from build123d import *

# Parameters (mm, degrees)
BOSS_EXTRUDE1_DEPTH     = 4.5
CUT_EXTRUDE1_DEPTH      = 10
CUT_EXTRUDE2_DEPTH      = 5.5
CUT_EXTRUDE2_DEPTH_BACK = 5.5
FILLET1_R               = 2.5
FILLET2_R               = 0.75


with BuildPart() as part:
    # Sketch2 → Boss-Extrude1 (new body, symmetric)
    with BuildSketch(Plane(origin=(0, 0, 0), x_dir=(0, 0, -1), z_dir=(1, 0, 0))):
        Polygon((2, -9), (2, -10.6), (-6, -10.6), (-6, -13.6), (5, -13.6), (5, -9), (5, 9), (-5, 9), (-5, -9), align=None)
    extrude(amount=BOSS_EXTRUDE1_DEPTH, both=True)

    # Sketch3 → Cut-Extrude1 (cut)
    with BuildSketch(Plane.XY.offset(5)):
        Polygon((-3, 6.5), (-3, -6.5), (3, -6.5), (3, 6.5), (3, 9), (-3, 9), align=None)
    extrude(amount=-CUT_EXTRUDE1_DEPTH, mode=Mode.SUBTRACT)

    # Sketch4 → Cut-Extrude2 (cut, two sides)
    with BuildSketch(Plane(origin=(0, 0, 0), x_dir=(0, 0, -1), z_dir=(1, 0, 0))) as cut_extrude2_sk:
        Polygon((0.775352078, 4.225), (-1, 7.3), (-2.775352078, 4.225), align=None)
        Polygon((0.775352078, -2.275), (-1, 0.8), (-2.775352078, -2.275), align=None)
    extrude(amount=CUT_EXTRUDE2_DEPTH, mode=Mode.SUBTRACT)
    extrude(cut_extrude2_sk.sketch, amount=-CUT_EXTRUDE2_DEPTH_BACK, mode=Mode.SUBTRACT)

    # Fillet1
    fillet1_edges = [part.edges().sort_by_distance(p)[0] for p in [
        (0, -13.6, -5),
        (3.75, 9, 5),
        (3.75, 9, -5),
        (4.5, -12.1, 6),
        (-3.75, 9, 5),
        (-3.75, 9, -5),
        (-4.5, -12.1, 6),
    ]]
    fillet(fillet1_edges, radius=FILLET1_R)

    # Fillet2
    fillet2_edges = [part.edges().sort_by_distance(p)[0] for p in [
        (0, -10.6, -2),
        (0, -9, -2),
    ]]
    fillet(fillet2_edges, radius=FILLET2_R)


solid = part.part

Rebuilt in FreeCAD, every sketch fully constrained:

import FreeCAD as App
import Part
import Sketcher

V = App.Vector
Q = App.Units.Quantity


def edges_at(feature, points):
    """Names of the edges that pass closest to the given points."""
    edges = feature.Shape.Edges
    near = lambda p: min(range(len(edges)), key=lambda i: edges[i].distToShape(Part.Vertex(*p))[0])
    return sorted({f"Edge{near(p) + 1}" for p in points})

doc = App.newDocument("Part")
params = doc.addObject("Spreadsheet::Sheet", "Params")
for row, (alias, value) in enumerate([
    ("sketch1_width", "3 mm"),
    ("sketch1_width2", "18 mm"),
    ("sketch1_height", "8 mm"),
    ("sketch1_height2", "11 mm"),
    ("sketch1_height3", "10 mm"),
    ("pad1_length", "9 mm"),
    ("sketch2_width", "6 mm"),
    ("sketch2_height", "15.5 mm"),
    ("pocket1_length", "10 mm"),
    ("fillet_radius", "2.5 mm"),
    ("fillet2_radius", "0.75 mm"),
], start=1):
    params.set(f"A{row}", alias)
    params.set(f"B{row}", "=" + value)
    params.setAlias(f"B{row}", alias)

body = doc.addObject("PartDesign::Body", "Body")

sketch1 = body.newObject("Sketcher::SketchObject", "Sketch")
sketch1.AttachmentSupport = (doc.getObject("YZ_Plane"), [""])
sketch1.MapMode = "FlatFace"
sketch1.addGeometry([
    Part.LineSegment(V(-9, -2, 0), V(-10.6, -2, 0)),
    Part.LineSegment(V(-10.6, -2, 0), V(-10.6, 6, 0)),
    Part.LineSegment(V(-10.6, 6, 0), V(-13.6, 6, 0)),
    Part.LineSegment(V(-13.6, 6, 0), V(-13.6, -5, 0)),
    Part.LineSegment(V(-13.6, -5, 0), V(9, -5, 0)),
    Part.LineSegment(V(9, -5, 0), V(9, 5, 0)),
    Part.LineSegment(V(9, 5, 0), V(-9, 5, 0)),
    Part.LineSegment(V(-9, 5, 0), V(-9, -2, 0)),
], False)
sketch1.addConstraint([
    Sketcher.Constraint("Coincident", 0, 2, 1, 1),
    Sketcher.Constraint("Coincident", 1, 2, 2, 1),
    Sketcher.Constraint("Coincident", 2, 2, 3, 1),
    Sketcher.Constraint("Coincident", 3, 2, 4, 1),
    Sketcher.Constraint("Coincident", 4, 2, 5, 1),
    Sketcher.Constraint("Coincident", 5, 2, 6, 1),
    Sketcher.Constraint("Coincident", 6, 2, 7, 1),
    Sketcher.Constraint("Coincident", 7, 2, 0, 1),
    Sketcher.Constraint("Horizontal", 0),
    Sketcher.Constraint("Vertical", 1),
    Sketcher.Constraint("Horizontal", 2),
    Sketcher.Constraint("Vertical", 3),
    Sketcher.Constraint("Horizontal", 4),
    Sketcher.Constraint("Vertical", 5),
    Sketcher.Constraint("Horizontal", 6),
    Sketcher.Constraint("Vertical", 7),
    Sketcher.Constraint("Symmetric", 4, 2, 6, 2, -1, 1),
    Sketcher.Constraint("DistanceX", 2, 2, 2, 1, Q("3 mm")),
    Sketcher.Constraint("DistanceX", 6, 2, 6, 1, Q("18 mm")),
    Sketcher.Constraint("DistanceY", 1, 1, 1, 2, Q("8 mm")),
    Sketcher.Constraint("DistanceY", 3, 2, 3, 1, Q("11 mm")),
    Sketcher.Constraint("DistanceY", 5, 1, 5, 2, Q("10 mm")),
    Sketcher.Constraint("DistanceX", 0, 2, 0, 1, Q("1.6 mm")),
])
sketch1.setExpression("Constraints[17]", "Params.sketch1_width")
sketch1.setExpression("Constraints[18]", "Params.sketch1_width2")
sketch1.setExpression("Constraints[19]", "Params.sketch1_height")
sketch1.setExpression("Constraints[20]", "Params.sketch1_height2")
sketch1.setExpression("Constraints[21]", "Params.sketch1_height3")
pad1 = body.newObject("PartDesign::Pad", "Pad")
pad1.Profile = sketch1
pad1.setExpression("Length", "Params.pad1_length")
pad1.Midplane = True

sketch2 = body.newObject("Sketcher::SketchObject", "Sketch001")
sketch2.AttachmentSupport = (doc.getObject("XY_Plane"), [""])
sketch2.MapMode = "FlatFace"
sketch2.AttachmentOffset = App.Placement(V(0, 0, 5), App.Rotation())
sketch2.addGeometry([
    Part.LineSegment(V(-3, -6.5, 0), V(3, -6.5, 0)),
    Part.LineSegment(V(3, -6.5, 0), V(3, 9, 0)),
    Part.LineSegment(V(3, 9, 0), V(-3, 9, 0)),
    Part.LineSegment(V(-3, 9, 0), V(-3, -6.5, 0)),
], False)
sketch2.addConstraint([
    Sketcher.Constraint("Coincident", 0, 2, 1, 1),
    Sketcher.Constraint("Coincident", 1, 2, 2, 1),
    Sketcher.Constraint("Coincident", 2, 2, 3, 1),
    Sketcher.Constraint("Coincident", 3, 2, 0, 1),
    Sketcher.Constraint("Horizontal", 0),
    Sketcher.Constraint("Vertical", 1),
    Sketcher.Constraint("Horizontal", 2),
    Sketcher.Constraint("Vertical", 3),
    Sketcher.Constraint("DistanceX", 0, 1, 0, 2, Q("6 mm")),
    Sketcher.Constraint("DistanceY", 1, 1, 1, 2, Q("15.5 mm")),
    Sketcher.Constraint("DistanceX", -1, 1, 0, 2, Q("3 mm")),
    Sketcher.Constraint("DistanceY", -1, 1, 1, 2, Q("9 mm")),
])
sketch2.setExpression("Constraints[8]", "Params.sketch2_width")
sketch2.setExpression("Constraints[9]", "Params.sketch2_height")
pocket1 = body.newObject("PartDesign::Pocket", "Pocket")
pocket1.Profile = sketch2
pocket1.setExpression("Length", "Params.pocket1_length")

sketch3 = body.newObject("Sketcher::SketchObject", "Sketch002")
sketch3.AttachmentSupport = (doc.getObject("YZ_Plane"), [""])
sketch3.MapMode = "FlatFace"
sketch3.addGeometry([
    Part.LineSegment(V(4.225, -0.775352, 0), V(7.3, 1, 0)),
    Part.LineSegment(V(7.3, 1, 0), V(4.225, 2.775352, 0)),
    Part.LineSegment(V(4.225, 2.775352, 0), V(4.225, -0.775352, 0)),
    Part.LineSegment(V(-2.275, -0.775352, 0), V(0.8, 1, 0)),
    Part.LineSegment(V(0.8, 1, 0), V(-2.275, 2.775352, 0)),
    Part.LineSegment(V(-2.275, 2.775352, 0), V(-2.275, -0.775352, 0)),
], False)
sketch3.addConstraint([
    Sketcher.Constraint("Coincident", 0, 2, 1, 1),
    Sketcher.Constraint("Coincident", 1, 2, 2, 1),
    Sketcher.Constraint("Coincident", 2, 2, 0, 1),
    Sketcher.Constraint("Coincident", 3, 2, 4, 1),
    Sketcher.Constraint("Coincident", 4, 2, 5, 1),
    Sketcher.Constraint("Coincident", 5, 2, 3, 1),
    Sketcher.Constraint("Vertical", 2),
    Sketcher.Constraint("Vertical", 5),
    Sketcher.Constraint("Parallel", 0, 3),
    Sketcher.Constraint("Parallel", 1, 4),
    Sketcher.Constraint("Horizontal", 0, 2, 3, 2),
    Sketcher.Constraint("Horizontal", 1, 2, 4, 2),
    Sketcher.Constraint("Equal", 0, 1),
    Sketcher.Constraint("Angle", 0, Q("30 deg")),
    Sketcher.Constraint("DistanceY", -1, 1, 0, 2, Q("1 mm")),
    Sketcher.Constraint("DistanceX", -1, 1, 0, 2, Q("7.3 mm")),
    Sketcher.Constraint("DistanceX", -1, 1, 3, 2, Q("0.8 mm")),
    Sketcher.Constraint("DistanceX", -1, 1, 1, 2, Q("4.225 mm")),
])
pocket2 = body.newObject("PartDesign::Pocket", "Pocket001")
pocket2.Profile = sketch3
pocket2.Type = "ThroughAll"
pocket2.Midplane = True
doc.recompute()

fillet = body.newObject("PartDesign::Fillet", "Fillet")
fillet.Base = (pocket2, edges_at(pocket2, [
    (0, -13.6, -5),
    (3.75, 9, 5),
    (3.75, 9, -5),
    (4.5, -12.1, 6),
    (-3.75, 9, 5),
    (-3.75, 9, -5),
    (-4.5, -12.1, 6),
]))
fillet.setExpression("Radius", "Params.fillet_radius")
doc.recompute()

fillet2 = body.newObject("PartDesign::Fillet", "Fillet001")
fillet2.Base = (fillet, edges_at(fillet, [(0, -10.6, -2), (0, -9, -2)]))
fillet2.setExpression("Radius", "Params.fillet2_radius")

doc.recompute()
